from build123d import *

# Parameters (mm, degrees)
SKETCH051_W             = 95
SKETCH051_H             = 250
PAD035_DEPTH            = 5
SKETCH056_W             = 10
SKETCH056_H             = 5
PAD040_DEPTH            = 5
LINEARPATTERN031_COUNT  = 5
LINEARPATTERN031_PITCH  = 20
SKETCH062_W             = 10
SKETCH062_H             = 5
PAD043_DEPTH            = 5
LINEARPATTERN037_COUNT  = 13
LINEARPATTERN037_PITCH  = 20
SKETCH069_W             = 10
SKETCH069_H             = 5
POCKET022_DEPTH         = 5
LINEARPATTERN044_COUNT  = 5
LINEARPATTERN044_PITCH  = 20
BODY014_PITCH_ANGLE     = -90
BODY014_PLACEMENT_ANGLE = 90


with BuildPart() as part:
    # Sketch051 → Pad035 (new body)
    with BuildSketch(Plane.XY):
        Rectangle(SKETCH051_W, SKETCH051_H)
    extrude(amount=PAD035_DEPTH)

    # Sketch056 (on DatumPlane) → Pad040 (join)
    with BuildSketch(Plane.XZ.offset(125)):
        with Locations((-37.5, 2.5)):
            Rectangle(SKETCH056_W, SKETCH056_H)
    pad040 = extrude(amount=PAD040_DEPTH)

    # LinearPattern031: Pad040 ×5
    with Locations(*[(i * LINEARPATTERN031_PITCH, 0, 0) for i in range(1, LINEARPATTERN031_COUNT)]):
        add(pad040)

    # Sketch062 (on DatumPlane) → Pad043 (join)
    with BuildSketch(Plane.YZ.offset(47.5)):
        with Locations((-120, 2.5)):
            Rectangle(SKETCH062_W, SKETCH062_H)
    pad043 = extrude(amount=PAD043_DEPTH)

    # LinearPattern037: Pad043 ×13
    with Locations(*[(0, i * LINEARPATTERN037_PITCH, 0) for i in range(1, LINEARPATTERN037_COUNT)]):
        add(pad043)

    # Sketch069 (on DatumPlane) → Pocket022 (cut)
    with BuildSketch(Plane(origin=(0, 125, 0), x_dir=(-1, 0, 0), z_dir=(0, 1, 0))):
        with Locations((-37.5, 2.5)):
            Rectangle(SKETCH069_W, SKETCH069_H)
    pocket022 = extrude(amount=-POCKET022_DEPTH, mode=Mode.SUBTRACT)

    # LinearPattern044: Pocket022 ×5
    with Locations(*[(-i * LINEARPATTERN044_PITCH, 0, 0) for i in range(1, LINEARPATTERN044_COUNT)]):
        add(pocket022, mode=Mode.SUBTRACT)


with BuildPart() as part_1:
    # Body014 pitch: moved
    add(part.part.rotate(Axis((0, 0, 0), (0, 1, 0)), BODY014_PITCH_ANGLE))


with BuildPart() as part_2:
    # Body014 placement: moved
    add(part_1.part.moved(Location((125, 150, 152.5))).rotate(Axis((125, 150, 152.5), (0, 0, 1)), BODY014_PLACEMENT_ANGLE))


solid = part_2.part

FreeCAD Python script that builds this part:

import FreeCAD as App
import Part
import Sketcher

V = App.Vector
Q = App.Units.Quantity

doc = App.newDocument("Part")
params = doc.addObject("Spreadsheet::Sheet", "Params")
for row, (alias, value) in enumerate([
    ("sketch1_width", "95 mm"),
    ("sketch1_height", "250 mm"),
    ("pad1_length", "5 mm"),
    ("sketch2_width", "10 mm"),
    ("sketch2_height", "5 mm"),
    ("pad2_length", "5 mm"),
    ("linearpattern_pitch", "20 mm"),
    ("sketch3_width", "10 mm"),
    ("sketch3_height", "5 mm"),
    ("pad3_length", "5 mm"),
    ("linearpattern2_pitch", "20 mm"),
    ("sketch4_width", "10 mm"),
    ("sketch4_height", "5 mm"),
    ("pocket1_length", "5 mm"),
    ("linearpattern3_pitch", "20 mm"),
], start=1):
    params.set(f"A{row}", alias)
    params.set(f"B{row}", "=" + value)
    params.setAlias(f"B{row}", alias)

body = doc.addObject("PartDesign::Body", "Body")

sketch1 = doc.addObject("Sketcher::SketchObject", "Sketch")
body.addObject(sketch1)
sketch1.AttachmentSupport = (doc.XY_Plane, [""])
sketch1.MapMode = "FlatFace"
sketch1.addGeometry(Part.LineSegment(V(-47.5, 125, 0), V(-47.5, -125, 0)), False)
sketch1.addGeometry(Part.LineSegment(V(-47.5, -125, 0), V(47.5, -125, 0)), False)
sketch1.addGeometry(Part.LineSegment(V(47.5, -125, 0), V(47.5, 125, 0)), False)
sketch1.addGeometry(Part.LineSegment(V(47.5, 125, 0), V(-47.5, 125, 0)), False)
sketch1.addConstraint(Sketcher.Constraint("Coincident", 0, 2, 1, 1))
sketch1.addConstraint(Sketcher.Constraint("Coincident", 1, 2, 2, 1))
sketch1.addConstraint(Sketcher.Constraint("Coincident", 2, 2, 3, 1))
sketch1.addConstraint(Sketcher.Constraint("Coincident", 3, 2, 0, 1))
sketch1.addConstraint(Sketcher.Constraint("Vertical", 0))
sketch1.addConstraint(Sketcher.Constraint("Horizontal", 1))
sketch1.addConstraint(Sketcher.Constraint("Vertical", 2))
sketch1.addConstraint(Sketcher.Constraint("Horizontal", 3))
sketch1.addConstraint(Sketcher.Constraint("Symmetric", 0, 2, 2, 2, -1, 1))
sketch1.addConstraint(Sketcher.Constraint("DistanceX", 1, 1, 1, 2, Q("95 mm")))
sketch1.addConstraint(Sketcher.Constraint("DistanceY", 0, 2, 0, 1, Q("250 mm")))
sketch1.setExpression("Constraints[9]", "Params.sketch1_width")
sketch1.setExpression("Constraints[10]", "Params.sketch1_height")
pad1 = doc.addObject("PartDesign::Pad", "Pad")
body.addObject(pad1)
pad1.Profile = sketch1
pad1.setExpression("Length", "Params.pad1_length")

sketch2 = doc.addObject("Sketcher::SketchObject", "Sketch001")
body.addObject(sketch2)
sketch2.AttachmentSupport = (doc.XZ_Plane, [""])
sketch2.MapMode = "FlatFace"
sketch2.AttachmentOffset = App.Placement(V(0, 0, 125), App.Rotation())
sketch2.addGeometry(Part.LineSegment(V(-42.5, 5, 0), V(-42.5, 0, 0)), False)
sketch2.addGeometry(Part.LineSegment(V(-42.5, 0, 0), V(-32.5, 0, 0)), False)
sketch2.addGeometry(Part.LineSegment(V(-32.5, 0, 0), V(-32.5, 5, 0)), False)
sketch2.addGeometry(Part.LineSegment(V(-32.5, 5, 0), V(-42.5, 5, 0)), False)
sketch2.addConstraint(Sketcher.Constraint("Coincident", 0, 2, 1, 1))
sketch2.addConstraint(Sketcher.Constraint("Coincident", 1, 2, 2, 1))
sketch2.addConstraint(Sketcher.Constraint("Coincident", 2, 2, 3, 1))
sketch2.addConstraint(Sketcher.Constraint("Coincident", 3, 2, 0, 1))
sketch2.addConstraint(Sketcher.Constraint("Vertical", 0))
sketch2.addConstraint(Sketcher.Constraint("Horizontal", 1))
sketch2.addConstraint(Sketcher.Constraint("Vertical", 2))
sketch2.addConstraint(Sketcher.Constraint("Horizontal", 3))
sketch2.addConstraint(Sketcher.Constraint("PointOnObject", 0, 2, -1))
sketch2.addConstraint(Sketcher.Constraint("DistanceX", 1, 1, 1, 2, Q("10 mm")))
sketch2.addConstraint(Sketcher.Constraint("DistanceY", 0, 2, 0, 1, Q("5 mm")))
sketch2.addConstraint(Sketcher.Constraint("DistanceX", 0, 2, -1, 1, Q("42.5 mm")))
sketch2.setExpression("Constraints[9]", "Params.sketch2_width")
sketch2.setExpression("Constraints[10]", "Params.sketch2_height")
pad2 = doc.addObject("PartDesign::Pad", "Pad001")
body.addObject(pad2)
pad2.Profile = sketch2
pad2.setExpression("Length", "Params.pad2_length")
doc.recompute()

linearpattern = doc.addObject("PartDesign::LinearPattern", "LinearPattern")
body.addObject(linearpattern)
linearpattern.Originals = [pad2]
linearpattern.Direction = (doc.X_Axis, [""])
linearpattern.Mode = "offset"
linearpattern.setExpression("Offset", "Params.linearpattern_pitch")
linearpattern.Occurrences = 5
body.Tip = linearpattern

sketch3 = doc.addObject("Sketcher::SketchObject", "Sketch002")
body.addObject(sketch3)
sketch3.AttachmentSupport = (doc.YZ_Plane, [""])
sketch3.MapMode = "FlatFace"
sketch3.AttachmentOffset = App.Placement(V(0, 0, 47.5), App.Rotation())
sketch3.addGeometry(Part.LineSegment(V(-125, 5, 0), V(-125, 0, 0)), False)
sketch3.addGeometry(Part.LineSegment(V(-125, 0, 0), V(-115, 0, 0)), False)
sketch3.addGeometry(Part.LineSegment(V(-115, 0, 0), V(-115, 5, 0)), False)
sketch3.addGeometry(Part.LineSegment(V(-115, 5, 0), V(-125, 5, 0)), False)
sketch3.addConstraint(Sketcher.Constraint("Coincident", 0, 2, 1, 1))
sketch3.addConstraint(Sketcher.Constraint("Coincident", 1, 2, 2, 1))
sketch3.addConstraint(Sketcher.Constraint("Coincident", 2, 2, 3, 1))
sketch3.addConstraint(Sketcher.Constraint("Coincident", 3, 2, 0, 1))
sketch3.addConstraint(Sketcher.Constraint("Vertical", 0))
sketch3.addConstraint(Sketcher.Constraint("Horizontal", 1))
sketch3.addConstraint(Sketcher.Constraint("Vertical", 2))
sketch3.addConstraint(Sketcher.Constraint("Horizontal", 3))
sketch3.addConstraint(Sketcher.Constraint("PointOnObject", 0, 2, -1))
sketch3.addConstraint(Sketcher.Constraint("DistanceX", 1, 1, 1, 2, Q("10 mm")))
sketch3.addConstraint(Sketcher.Constraint("DistanceY", 0, 2, 0, 1, Q("5 mm")))
sketch3.addConstraint(Sketcher.Constraint("DistanceX", 0, 2, -1, 1, Q("125 mm")))
sketch3.setExpression("Constraints[9]", "Params.sketch3_width")
sketch3.setExpression("Constraints[10]", "Params.sketch3_height")
pad3 = doc.addObject("PartDesign::Pad", "Pad002")
body.addObject(pad3)
pad3.Profile = sketch3
pad3.setExpression("Length", "Params.pad3_length")
doc.recompute()

linearpattern2 = doc.addObject("PartDesign::LinearPattern", "LinearPattern001")
body.addObject(linearpattern2)
linearpattern2.Originals = [pad3]
linearpattern2.Direction = (doc.Y_Axis, [""])
linearpattern2.Mode = "offset"
linearpattern2.setExpression("Offset", "Params.linearpattern2_pitch")
linearpattern2.Occurrences = 13
body.Tip = linearpattern2

sketch4 = doc.addObject("Sketcher::SketchObject", "Sketch003")
body.addObject(sketch4)
sketch4.AttachmentSupport = (doc.XZ_Plane, [""])
sketch4.MapMode = "FlatFace"
sketch4.AttachmentOffset = App.Placement(V(0, 0, -125), App.Rotation())
sketch4.addGeometry(Part.LineSegment(V(42.5, 5, 0), V(42.5, 0, 0)), False)
sketch4.addGeometry(Part.LineSegment(V(42.5, 0, 0), V(32.5, 0, 0)), False)
sketch4.addGeometry(Part.LineSegment(V(32.5, 0, 0), V(32.5, 5, 0)), False)
sketch4.addGeometry(Part.LineSegment(V(32.5, 5, 0), V(42.5, 5, 0)), False)
sketch4.addConstraint(Sketcher.Constraint("Coincident", 0, 2, 1, 1))
sketch4.addConstraint(Sketcher.Constraint("Coincident", 1, 2, 2, 1))
sketch4.addConstraint(Sketcher.Constraint("Coincident", 2, 2, 3, 1))
sketch4.addConstraint(Sketcher.Constraint("Coincident", 3, 2, 0, 1))
sketch4.addConstraint(Sketcher.Constraint("Vertical", 0))
sketch4.addConstraint(Sketcher.Constraint("Horizontal", 1))
sketch4.addConstraint(Sketcher.Constraint("Vertical", 2))
sketch4.addConstraint(Sketcher.Constraint("Horizontal", 3))
sketch4.addConstraint(Sketcher.Constraint("PointOnObject", 0, 2, -1))
sketch4.addConstraint(Sketcher.Constraint("DistanceX", 1, 2, 1, 1, Q("10 mm")))
sketch4.addConstraint(Sketcher.Constraint("DistanceY", 0, 2, 0, 1, Q("5 mm")))
sketch4.addConstraint(Sketcher.Constraint("DistanceX", -1, 1, 0, 2, Q("42.5 mm")))
sketch4.setExpression("Constraints[9]", "Params.sketch4_width")
sketch4.setExpression("Constraints[10]", "Params.sketch4_height")
pocket1 = doc.addObject("PartDesign::Pocket", "Pocket")
body.addObject(pocket1)
pocket1.Profile = sketch4
pocket1.setExpression("Length", "Params.pocket1_length")
pocket1.Reversed = True
doc.recompute()

linearpattern3 = doc.addObject("PartDesign::LinearPattern", "LinearPattern002")
body.addObject(linearpattern3)
linearpattern3.Originals = [pocket1]
linearpattern3.Direction = (doc.X_Axis, [""])
linearpattern3.Mode = "offset"
linearpattern3.setExpression("Offset", "Params.linearpattern3_pitch")
linearpattern3.Occurrences = 5
linearpattern3.Reversed = True
body.Tip = linearpattern3
body2 = doc.addObject("PartDesign::Body", "Body001")
doc.recompute()

body.Placement = App.Placement(V(0, 0, 0), App.Rotation(V(0, 1, 0), 270))
boolean = doc.addObject("PartDesign::Boolean", "Boolean")
body2.addObject(boolean)
boolean.Type = "Fuse"
boolean.addObjects([body])
body3 = doc.addObject("PartDesign::Body", "Body002")
doc.recompute()

body2.Placement = App.Placement(V(125, 150, 152.5), App.Rotation(V(0, 0, 1), 90))
boolean2 = doc.addObject("PartDesign::Boolean", "Boolean001")
body3.addObject(boolean2)
boolean2.Type = "Fuse"
boolean2.addObjects([body2])

doc.recompute()
